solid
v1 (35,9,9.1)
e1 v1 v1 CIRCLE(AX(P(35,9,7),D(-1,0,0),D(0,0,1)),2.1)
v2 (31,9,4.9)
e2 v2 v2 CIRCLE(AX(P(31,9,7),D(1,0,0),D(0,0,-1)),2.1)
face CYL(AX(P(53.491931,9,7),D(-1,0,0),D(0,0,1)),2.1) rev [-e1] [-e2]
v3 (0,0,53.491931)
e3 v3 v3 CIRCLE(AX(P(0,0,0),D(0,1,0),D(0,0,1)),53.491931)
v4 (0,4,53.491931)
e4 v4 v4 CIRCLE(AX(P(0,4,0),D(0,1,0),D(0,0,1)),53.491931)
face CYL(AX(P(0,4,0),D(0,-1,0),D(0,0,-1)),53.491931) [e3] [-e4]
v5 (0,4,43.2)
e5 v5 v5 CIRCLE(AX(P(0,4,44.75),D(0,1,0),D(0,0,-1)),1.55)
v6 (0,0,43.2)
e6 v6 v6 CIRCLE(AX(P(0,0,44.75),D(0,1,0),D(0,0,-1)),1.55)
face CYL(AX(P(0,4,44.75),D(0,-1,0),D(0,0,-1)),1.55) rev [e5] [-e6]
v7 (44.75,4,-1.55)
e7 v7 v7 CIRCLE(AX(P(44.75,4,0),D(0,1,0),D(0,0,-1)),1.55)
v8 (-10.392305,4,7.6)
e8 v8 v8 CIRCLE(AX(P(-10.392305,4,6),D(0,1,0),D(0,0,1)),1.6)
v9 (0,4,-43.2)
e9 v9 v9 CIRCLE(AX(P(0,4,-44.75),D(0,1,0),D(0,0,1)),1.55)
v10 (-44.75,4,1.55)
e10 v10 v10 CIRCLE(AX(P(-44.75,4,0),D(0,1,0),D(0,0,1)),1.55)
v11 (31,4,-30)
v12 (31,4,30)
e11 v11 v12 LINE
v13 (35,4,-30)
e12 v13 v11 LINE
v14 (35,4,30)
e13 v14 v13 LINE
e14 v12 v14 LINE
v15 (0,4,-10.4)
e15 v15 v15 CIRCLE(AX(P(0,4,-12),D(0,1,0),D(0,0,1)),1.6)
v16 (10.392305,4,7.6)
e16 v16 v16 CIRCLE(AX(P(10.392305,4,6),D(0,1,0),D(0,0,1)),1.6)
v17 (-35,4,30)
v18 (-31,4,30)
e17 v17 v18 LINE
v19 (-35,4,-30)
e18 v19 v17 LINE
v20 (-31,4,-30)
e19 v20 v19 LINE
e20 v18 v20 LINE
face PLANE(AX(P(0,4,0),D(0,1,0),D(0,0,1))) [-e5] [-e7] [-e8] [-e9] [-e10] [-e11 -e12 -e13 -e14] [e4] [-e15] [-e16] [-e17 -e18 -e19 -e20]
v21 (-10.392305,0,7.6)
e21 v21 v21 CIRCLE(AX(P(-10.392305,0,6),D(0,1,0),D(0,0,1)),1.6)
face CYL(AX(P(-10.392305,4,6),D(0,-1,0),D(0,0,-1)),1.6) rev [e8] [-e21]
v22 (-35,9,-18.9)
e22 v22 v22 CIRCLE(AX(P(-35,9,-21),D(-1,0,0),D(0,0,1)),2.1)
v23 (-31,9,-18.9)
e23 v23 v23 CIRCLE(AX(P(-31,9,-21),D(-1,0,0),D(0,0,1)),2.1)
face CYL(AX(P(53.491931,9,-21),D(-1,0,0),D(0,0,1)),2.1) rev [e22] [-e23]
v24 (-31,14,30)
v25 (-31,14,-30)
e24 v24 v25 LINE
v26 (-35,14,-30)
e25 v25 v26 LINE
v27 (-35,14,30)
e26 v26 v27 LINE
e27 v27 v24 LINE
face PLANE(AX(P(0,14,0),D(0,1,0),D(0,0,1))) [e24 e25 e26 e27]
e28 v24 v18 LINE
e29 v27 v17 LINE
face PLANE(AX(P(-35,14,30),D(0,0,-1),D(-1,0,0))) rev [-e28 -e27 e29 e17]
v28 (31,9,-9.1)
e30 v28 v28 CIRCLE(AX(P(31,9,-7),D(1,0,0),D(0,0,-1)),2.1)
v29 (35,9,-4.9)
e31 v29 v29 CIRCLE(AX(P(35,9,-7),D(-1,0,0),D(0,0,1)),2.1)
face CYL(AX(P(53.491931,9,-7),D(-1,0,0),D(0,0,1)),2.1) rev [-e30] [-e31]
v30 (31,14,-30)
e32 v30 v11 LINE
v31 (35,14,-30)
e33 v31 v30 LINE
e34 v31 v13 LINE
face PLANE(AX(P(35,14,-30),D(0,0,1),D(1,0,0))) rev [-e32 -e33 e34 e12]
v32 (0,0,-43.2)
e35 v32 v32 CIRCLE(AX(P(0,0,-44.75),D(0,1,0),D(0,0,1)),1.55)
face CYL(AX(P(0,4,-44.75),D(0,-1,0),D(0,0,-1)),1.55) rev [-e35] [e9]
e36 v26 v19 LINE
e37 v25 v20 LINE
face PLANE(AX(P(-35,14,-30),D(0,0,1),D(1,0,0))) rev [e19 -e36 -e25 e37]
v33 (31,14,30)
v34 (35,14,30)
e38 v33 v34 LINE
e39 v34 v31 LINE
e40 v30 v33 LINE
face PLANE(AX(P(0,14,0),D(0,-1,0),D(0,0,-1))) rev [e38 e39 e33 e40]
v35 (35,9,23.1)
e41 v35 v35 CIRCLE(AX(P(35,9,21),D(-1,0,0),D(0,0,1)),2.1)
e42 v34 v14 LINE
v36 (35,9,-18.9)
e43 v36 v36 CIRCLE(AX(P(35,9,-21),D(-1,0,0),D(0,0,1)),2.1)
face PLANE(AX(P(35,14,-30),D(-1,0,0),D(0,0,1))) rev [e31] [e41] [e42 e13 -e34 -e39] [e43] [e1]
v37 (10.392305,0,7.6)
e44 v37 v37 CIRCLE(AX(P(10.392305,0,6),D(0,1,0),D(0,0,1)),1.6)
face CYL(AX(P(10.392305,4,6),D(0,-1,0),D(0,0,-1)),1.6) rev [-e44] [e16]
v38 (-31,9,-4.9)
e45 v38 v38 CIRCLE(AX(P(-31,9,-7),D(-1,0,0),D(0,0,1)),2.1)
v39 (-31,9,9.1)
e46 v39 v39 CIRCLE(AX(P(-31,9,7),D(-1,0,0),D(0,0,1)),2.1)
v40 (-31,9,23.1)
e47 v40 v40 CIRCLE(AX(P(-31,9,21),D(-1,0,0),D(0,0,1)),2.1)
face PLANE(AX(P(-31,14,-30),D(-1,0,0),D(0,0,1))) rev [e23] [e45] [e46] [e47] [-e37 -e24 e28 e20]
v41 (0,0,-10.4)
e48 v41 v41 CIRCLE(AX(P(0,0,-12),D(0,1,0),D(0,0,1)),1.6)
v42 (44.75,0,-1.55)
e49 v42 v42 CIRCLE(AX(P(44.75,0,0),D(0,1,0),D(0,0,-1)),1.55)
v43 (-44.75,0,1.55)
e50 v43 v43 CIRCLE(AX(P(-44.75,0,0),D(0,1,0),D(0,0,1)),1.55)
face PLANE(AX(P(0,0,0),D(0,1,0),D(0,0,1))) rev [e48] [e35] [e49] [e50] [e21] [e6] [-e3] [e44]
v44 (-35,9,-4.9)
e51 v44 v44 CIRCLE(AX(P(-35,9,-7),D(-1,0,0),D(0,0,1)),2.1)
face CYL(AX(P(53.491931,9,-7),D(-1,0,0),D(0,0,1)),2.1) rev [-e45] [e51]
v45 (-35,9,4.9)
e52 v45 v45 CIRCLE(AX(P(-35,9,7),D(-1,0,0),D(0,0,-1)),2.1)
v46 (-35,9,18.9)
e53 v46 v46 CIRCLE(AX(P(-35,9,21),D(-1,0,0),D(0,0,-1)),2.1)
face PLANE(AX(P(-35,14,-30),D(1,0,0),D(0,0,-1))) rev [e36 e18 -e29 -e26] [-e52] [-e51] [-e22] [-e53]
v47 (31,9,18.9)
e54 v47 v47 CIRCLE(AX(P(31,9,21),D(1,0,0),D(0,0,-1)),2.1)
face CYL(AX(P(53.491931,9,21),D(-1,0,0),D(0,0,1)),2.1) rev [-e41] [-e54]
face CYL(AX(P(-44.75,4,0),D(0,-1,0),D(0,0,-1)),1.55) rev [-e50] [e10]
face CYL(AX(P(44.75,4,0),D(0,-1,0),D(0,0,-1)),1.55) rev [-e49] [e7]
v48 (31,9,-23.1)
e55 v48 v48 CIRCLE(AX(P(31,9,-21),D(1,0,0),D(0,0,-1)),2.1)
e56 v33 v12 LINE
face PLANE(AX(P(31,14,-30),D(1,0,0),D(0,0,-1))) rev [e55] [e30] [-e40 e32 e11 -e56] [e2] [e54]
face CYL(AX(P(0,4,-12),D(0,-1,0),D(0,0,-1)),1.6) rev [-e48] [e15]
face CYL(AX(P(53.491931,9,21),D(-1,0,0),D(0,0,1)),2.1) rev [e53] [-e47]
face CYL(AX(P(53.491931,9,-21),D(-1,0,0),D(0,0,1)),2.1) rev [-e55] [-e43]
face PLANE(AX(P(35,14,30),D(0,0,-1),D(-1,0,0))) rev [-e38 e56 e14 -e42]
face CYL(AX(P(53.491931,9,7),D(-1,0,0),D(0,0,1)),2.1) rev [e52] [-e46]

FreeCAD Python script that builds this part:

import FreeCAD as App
import Part
import Sketcher
Q = App.Units.Quantity


def add_polygon(sketch, points):
    """Adds a closed chain of lines whose ends are joined by coincident constraints."""
    first, n = sketch.GeometryCount, len(points)
    for a, b in zip(points, points[1:] + points[:1]):
        sketch.addGeometry(Part.LineSegment(App.Vector(*a, 0), App.Vector(*b, 0)), False)
    for i in range(n):
        sketch.addConstraint(Sketcher.Constraint("Coincident", first + i, 2, first + (i + 1) % n, 1))

doc = App.newDocument("Part")
body = doc.addObject("PartDesign::Body", "Body")

# Sketch on XZ plane
sketch1 = body.newObject("Sketcher::SketchObject", "Sketch")
sketch1.AttachmentSupport = (doc.getObject("XZ_Plane"), [""])
sketch1.MapMode = "FlatFace"
sketch1.addGeometry([
    Part.Circle(App.Vector(0, 0, 0), App.Vector(0, 0, 1), 53.5),  # 0
    Part.Circle(App.Vector(0, -44.8, 0), App.Vector(0, 0, 1), 1.6),  # 1
    Part.Circle(App.Vector(-44.8, 0, 0), App.Vector(0, 0, 1), 1.6),  # 2
    Part.Circle(App.Vector(-10.4, 6, 0), App.Vector(0, 0, 1), 1.6),  # 3
    Part.Circle(App.Vector(0, -12, 0), App.Vector(0, 0, 1), 1.6),  # 4
    Part.Circle(App.Vector(44.8, 0, 0), App.Vector(0, 0, 1), 1.6),  # 5
    Part.Circle(App.Vector(10.4, 6, 0), App.Vector(0, 0, 1), 1.6),  # 6
    Part.Circle(App.Vector(0, 44.8, 0), App.Vector(0, 0, 1), 1.6),  # 7
], False)
sketch1.addConstraint([
    Sketcher.Constraint("Coincident", 0, 3, -1, 1),
    Sketcher.Constraint("Equal", 1, 2),
    Sketcher.Constraint("Equal", 3, 4),
    Sketcher.Constraint("Equal", 2, 5),
    Sketcher.Constraint("Equal", 4, 6),
    Sketcher.Constraint("Equal", 5, 7),
    Sketcher.Constraint("Symmetric", 2, 3, 5, 3, -1, 1),
    Sketcher.Constraint("Symmetric", 1, 3, 7, 3, -1, 1),
    Sketcher.Constraint("Symmetric", 3, 3, 6, 3, -2),
    Sketcher.Constraint("PointOnObject", 1, 3, -2),
    Sketcher.Constraint("PointOnObject", 2, 3, -1),
    Sketcher.Constraint("PointOnObject", 4, 3, -2),
    Sketcher.Constraint("Diameter", 1, Q("3.1 mm")),
    Sketcher.Constraint("Diameter", 3, Q("3.2 mm")),
    Sketcher.Constraint("DistanceY", -1, 1, 3, 3, Q("6 mm")),
    Sketcher.Constraint("DistanceY", 4, 3, -1, 1, Q("12 mm")),
    Sketcher.Constraint("DistanceX", 2, 3, 5, 3, Q("89.5 mm")),
    Sketcher.Constraint("Diameter", 0, Q("106.983862 mm")),
    Sketcher.Constraint("DistanceY", 1, 3, -1, 1, Q("44.75 mm")),
    Sketcher.Constraint("DistanceX", 3, 3, 6, 3, Q("20.78461 mm")),
])
pad1 = body.newObject("PartDesign::Pad", "Pad")
pad1.Profile = sketch1
pad1.Length = 4
pad1.Reversed = True

# Sketch on XZ plane
sketch2 = body.newObject("Sketcher::SketchObject", "Sketch001")
sketch2.AttachmentSupport = (doc.getObject("XZ_Plane"), [""])
sketch2.MapMode = "FlatFace"
sketch2.AttachmentOffset = App.Placement(App.Vector(0, 0, -4), App.Rotation())
add_polygon(sketch2, [(31, -30), (31, 30), (35, 30), (35, -30)])  # lines 0-3
add_polygon(sketch2, [(-35, -30), (-35, 30), (-31, 30), (-31, -30)])  # lines 4-7
sketch2.addConstraint([
    Sketcher.Constraint("Vertical", 0),
    Sketcher.Constraint("Horizontal", 1),
    Sketcher.Constraint("Vertical", 2),
    Sketcher.Constraint("Horizontal", 3),
    Sketcher.Constraint("Vertical", 4),
    Sketcher.Constraint("Horizontal", 5),
    Sketcher.Constraint("Vertical", 6),
    Sketcher.Constraint("Horizontal", 7),
    Sketcher.Constraint("Symmetric", 2, 2, 4, 2, -1, 1),
    Sketcher.Constraint("Symmetric", 0, 2, 6, 2, -1, 1),
    Sketcher.Constraint("Horizontal", 1, 2, 4, 2),
    Sketcher.Constraint("DistanceX", 1, 1, 1, 2, Q("4 mm")),
    Sketcher.Constraint("DistanceY", 0, 1, 0, 2, Q("60 mm")),
    Sketcher.Constraint("DistanceX", -1, 1, 0, 2, Q("31 mm")),
])
pad2 = body.newObject("PartDesign::Pad", "Pad001")
pad2.Profile = sketch2
pad2.Length = 10
pad2.Reversed = True

# Sketch on YZ plane
sketch3 = body.newObject("Sketcher::SketchObject", "Sketch002")
sketch3.AttachmentSupport = (doc.getObject("YZ_Plane"), [""])
sketch3.MapMode = "FlatFace"
sketch3.AttachmentOffset = App.Placement(App.Vector(0, 0, -35), App.Rotation())
sketch3.addGeometry([
    Part.Circle(App.Vector(9, 7, 0), App.Vector(0, 0, 1), 2.1),
    Part.Circle(App.Vector(9, -7, 0), App.Vector(0, 0, 1), 2.1),
    Part.Circle(App.Vector(9, -21, 0), App.Vector(0, 0, 1), 2.1),
    Part.Circle(App.Vector(9, 21, 0), App.Vector(0, 0, 1), 2.1),
], False)
sketch3.addConstraint([
    Sketcher.Constraint("Equal", 0, 1),
    Sketcher.Constraint("Equal", 1, 2),
    Sketcher.Constraint("Equal", 2, 3),
    Sketcher.Constraint("Symmetric", 0, 3, 1, 3, -1),
    Sketcher.Constraint("Symmetric", 2, 3, 3, 3, -1),
    Sketcher.Constraint("Vertical", 1, 3, 2, 3),
    Sketcher.Constraint("Diameter", 0, Q("4.2 mm")),
    Sketcher.Constraint("DistanceX", -1, 1, 0, 3, Q("9 mm")),
    Sketcher.Constraint("DistanceY", -1, 1, 0, 3, Q("7 mm")),
    Sketcher.Constraint("DistanceY", 2, 3, -1, 1, Q("21 mm")),
])
pocket1 = body.newObject("PartDesign::Pocket", "Pocket")
pocket1.Profile = sketch3
pocket1.Type = "ThroughAll"
pocket1.Reversed = True

doc.recompute()
